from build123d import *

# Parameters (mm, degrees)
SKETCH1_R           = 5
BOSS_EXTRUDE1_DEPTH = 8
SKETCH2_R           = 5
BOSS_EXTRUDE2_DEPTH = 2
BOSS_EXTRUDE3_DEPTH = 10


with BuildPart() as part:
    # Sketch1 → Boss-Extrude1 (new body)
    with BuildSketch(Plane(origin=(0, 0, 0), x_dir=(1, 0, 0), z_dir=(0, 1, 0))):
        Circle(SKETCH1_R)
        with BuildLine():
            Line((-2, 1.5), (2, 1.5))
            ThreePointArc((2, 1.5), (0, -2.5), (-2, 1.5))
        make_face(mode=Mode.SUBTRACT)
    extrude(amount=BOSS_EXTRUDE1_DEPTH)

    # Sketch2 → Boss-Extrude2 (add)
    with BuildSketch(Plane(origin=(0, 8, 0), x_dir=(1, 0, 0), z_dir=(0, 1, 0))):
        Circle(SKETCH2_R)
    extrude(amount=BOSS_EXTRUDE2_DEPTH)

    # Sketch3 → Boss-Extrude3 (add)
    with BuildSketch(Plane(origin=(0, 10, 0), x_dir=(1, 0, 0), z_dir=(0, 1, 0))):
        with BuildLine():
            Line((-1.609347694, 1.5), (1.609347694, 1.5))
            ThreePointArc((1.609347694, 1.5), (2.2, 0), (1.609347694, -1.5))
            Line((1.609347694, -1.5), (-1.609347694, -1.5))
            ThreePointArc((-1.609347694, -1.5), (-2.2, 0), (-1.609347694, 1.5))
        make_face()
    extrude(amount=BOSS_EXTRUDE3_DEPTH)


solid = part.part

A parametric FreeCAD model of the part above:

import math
import FreeCAD as App
import Part
import Sketcher
from FreeCAD import Vector

doc = App.newDocument("Part")
body = doc.addObject("PartDesign::Body", "Body")

# Sketch on XZ plane
sketch1 = body.newObject("Sketcher::SketchObject", "Sketch")
sketch1.AttachmentSupport = (doc.getObject("XZ_Plane"), [""])
sketch1.MapMode = "FlatFace"
sketch1.addGeometry([
    Part.Circle(Vector(0, 0, 0), Vector(0, 0, 1), 5),
    Part.ArcOfCircle(Part.Circle(Vector(0, 0, 0), Vector(0, 0, 1), 2.5), math.radians(-37), math.radians(217)),
    Part.LineSegment(Vector(-2, -1.5, 0), Vector(2, -1.5, 0)),
], False)
sketch1.addConstraint([
    Sketcher.Constraint("Coincident", 1, 1, 2, 2),
    Sketcher.Constraint("Coincident", 2, 1, 1, 2),
    Sketcher.Constraint("Horizontal", 2),
    Sketcher.Constraint("Coincident", 0, 3, -1, 1),
    Sketcher.Constraint("Coincident", 1, 3, -1, 1),
    Sketcher.Constraint("Diameter", 0, 10.0),
    Sketcher.Constraint("Radius", 1, 2.5),
    Sketcher.Constraint("DistanceX", 2, 1, 2, 2, 4.0),
])
pad1 = body.newObject("PartDesign::Pad", "Pad")
pad1.Profile = sketch1
pad1.Length = 8
pad1.Reversed = True

# Sketch on XZ plane
sketch2 = body.newObject("Sketcher::SketchObject", "Sketch001")
sketch2.AttachmentSupport = (doc.getObject("XZ_Plane"), [""])
sketch2.MapMode = "FlatFace"
sketch2.AttachmentOffset = App.Placement(Vector(0, 0, -8), App.Rotation())
sketch2.addGeometry(Part.Circle(Vector(0, 0, 0), Vector(0, 0, 1), 5), False)
sketch2.addConstraint([
    Sketcher.Constraint("Coincident", 0, 3, -1, 1),
    Sketcher.Constraint("Diameter", 0, 10.0),
])
pad2 = body.newObject("PartDesign::Pad", "Pad001")
pad2.Profile = sketch2
pad2.Length = 2
pad2.Reversed = True

# Sketch on XZ plane
sketch3 = body.newObject("Sketcher::SketchObject", "Sketch002")
sketch3.AttachmentSupport = (doc.getObject("XZ_Plane"), [""])
sketch3.MapMode = "FlatFace"
sketch3.AttachmentOffset = App.Placement(Vector(0, 0, -10), App.Rotation())
sketch3.addGeometry([
    Part.LineSegment(Vector(1.6, -1.5, 0), Vector(-1.6, -1.5, 0)),
    Part.ArcOfCircle(Part.Circle(Vector(0, 0, 0), Vector(0, 0, 1), 2.2), math.radians(137), math.radians(223)),
    Part.LineSegment(Vector(-1.6, 1.5, 0), Vector(1.6, 1.5, 0)),
    Part.ArcOfCircle(Part.Circle(Vector(0, 0, 0), Vector(0, 0, 1), 2.2), math.radians(-43), math.radians(43)),
], False)
sketch3.addConstraint([
    Sketcher.Constraint("Coincident", 0, 2, 1, 2),
    Sketcher.Constraint("Coincident", 1, 1, 2, 1),
    Sketcher.Constraint("Coincident", 2, 2, 3, 2),
    Sketcher.Constraint("Coincident", 3, 1, 0, 1),
    Sketcher.Constraint("Horizontal", 0),
    Sketcher.Constraint("Horizontal", 2),
    Sketcher.Constraint("Coincident", 1, 3, -1, 1),
    Sketcher.Constraint("Coincident", 3, 3, -1, 1),
    Sketcher.Constraint("Equal", 1, 3),
    Sketcher.Constraint("Vertical", 0, 2, 1, 1),
    Sketcher.Constraint("Radius", 1, 2.2),
    Sketcher.Constraint("DistanceY", 0, 2, 1, 1, 3.0),
])
pad3 = body.newObject("PartDesign::Pad", "Pad002")
pad3.Profile = sketch3
pad3.Length = 10
pad3.Reversed = True

doc.recompute()
